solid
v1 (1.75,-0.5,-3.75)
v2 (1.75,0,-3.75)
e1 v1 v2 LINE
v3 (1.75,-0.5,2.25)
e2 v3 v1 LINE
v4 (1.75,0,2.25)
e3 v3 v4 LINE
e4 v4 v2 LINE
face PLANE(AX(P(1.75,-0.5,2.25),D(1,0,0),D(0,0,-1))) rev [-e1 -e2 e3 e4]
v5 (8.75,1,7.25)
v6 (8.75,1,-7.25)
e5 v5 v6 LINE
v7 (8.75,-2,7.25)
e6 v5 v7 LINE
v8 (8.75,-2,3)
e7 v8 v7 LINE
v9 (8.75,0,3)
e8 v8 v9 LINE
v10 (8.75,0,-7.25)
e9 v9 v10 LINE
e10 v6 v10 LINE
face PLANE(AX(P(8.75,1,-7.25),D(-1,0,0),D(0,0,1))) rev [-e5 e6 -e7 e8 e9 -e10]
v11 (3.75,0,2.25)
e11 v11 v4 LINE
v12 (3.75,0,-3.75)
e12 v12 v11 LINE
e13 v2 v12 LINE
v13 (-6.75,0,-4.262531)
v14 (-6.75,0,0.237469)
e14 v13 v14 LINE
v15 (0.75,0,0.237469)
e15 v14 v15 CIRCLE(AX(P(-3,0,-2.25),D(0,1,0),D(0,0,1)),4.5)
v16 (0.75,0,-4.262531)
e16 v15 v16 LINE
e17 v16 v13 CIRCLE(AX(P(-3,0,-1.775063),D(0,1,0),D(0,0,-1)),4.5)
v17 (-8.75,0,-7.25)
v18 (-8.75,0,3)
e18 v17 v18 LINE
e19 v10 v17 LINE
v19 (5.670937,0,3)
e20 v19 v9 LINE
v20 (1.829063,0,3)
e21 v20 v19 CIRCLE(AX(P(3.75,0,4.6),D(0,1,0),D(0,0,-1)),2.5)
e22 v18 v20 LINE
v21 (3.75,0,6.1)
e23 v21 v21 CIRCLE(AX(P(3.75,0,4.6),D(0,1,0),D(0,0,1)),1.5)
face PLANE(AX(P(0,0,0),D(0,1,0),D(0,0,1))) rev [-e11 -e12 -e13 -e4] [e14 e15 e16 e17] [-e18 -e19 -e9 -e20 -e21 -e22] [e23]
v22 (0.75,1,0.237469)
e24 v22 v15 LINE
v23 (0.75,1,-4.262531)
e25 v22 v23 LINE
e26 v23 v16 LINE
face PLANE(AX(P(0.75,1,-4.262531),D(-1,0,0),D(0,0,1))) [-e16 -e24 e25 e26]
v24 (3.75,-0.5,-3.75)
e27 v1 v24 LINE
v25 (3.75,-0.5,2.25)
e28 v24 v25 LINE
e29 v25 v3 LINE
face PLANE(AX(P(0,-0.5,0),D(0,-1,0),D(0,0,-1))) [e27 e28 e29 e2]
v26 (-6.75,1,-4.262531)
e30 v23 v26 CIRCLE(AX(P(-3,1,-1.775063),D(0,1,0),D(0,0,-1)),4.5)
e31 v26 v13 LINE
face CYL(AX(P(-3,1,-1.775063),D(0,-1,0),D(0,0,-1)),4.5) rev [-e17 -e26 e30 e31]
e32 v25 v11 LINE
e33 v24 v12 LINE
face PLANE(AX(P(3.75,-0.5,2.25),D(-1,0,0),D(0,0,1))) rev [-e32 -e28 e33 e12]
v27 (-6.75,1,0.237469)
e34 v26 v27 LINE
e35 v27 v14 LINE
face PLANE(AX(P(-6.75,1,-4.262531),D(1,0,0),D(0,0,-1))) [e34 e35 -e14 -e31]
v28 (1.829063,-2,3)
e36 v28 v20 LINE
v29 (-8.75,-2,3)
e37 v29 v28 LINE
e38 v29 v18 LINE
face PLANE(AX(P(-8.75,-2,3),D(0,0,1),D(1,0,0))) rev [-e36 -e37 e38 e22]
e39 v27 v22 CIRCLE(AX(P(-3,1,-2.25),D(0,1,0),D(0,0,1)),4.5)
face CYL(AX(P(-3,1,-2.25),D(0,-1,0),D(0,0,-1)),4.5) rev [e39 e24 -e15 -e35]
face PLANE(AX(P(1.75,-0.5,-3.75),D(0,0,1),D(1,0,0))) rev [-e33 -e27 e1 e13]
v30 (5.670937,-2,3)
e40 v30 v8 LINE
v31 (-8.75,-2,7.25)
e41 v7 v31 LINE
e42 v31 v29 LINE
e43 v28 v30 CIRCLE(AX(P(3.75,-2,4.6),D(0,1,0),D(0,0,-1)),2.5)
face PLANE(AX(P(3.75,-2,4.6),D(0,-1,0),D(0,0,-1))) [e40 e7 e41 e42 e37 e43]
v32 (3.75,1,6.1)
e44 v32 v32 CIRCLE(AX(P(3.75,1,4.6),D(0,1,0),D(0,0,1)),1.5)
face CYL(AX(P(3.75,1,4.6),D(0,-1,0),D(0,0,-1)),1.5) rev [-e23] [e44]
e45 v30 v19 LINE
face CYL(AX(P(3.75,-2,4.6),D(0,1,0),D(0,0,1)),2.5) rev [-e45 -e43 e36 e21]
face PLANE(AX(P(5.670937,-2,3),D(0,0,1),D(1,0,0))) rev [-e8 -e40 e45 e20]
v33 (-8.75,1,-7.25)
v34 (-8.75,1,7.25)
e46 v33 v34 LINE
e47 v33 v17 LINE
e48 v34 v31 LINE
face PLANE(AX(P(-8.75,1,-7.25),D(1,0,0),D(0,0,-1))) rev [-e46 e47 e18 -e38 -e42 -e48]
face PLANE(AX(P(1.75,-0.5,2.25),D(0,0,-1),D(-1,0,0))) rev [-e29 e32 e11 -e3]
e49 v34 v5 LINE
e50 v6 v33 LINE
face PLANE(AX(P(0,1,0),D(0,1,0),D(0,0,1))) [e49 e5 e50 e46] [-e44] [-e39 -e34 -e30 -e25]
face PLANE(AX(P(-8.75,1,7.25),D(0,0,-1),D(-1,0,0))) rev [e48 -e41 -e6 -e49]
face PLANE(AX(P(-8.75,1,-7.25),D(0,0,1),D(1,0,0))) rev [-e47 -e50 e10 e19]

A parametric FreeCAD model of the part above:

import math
import FreeCAD as App
import Part
import Sketcher
from FreeCAD import Vector

doc = App.newDocument("Part")
params = doc.addObject("Spreadsheet::Sheet", "Params")
for row, (alias, value) in enumerate([
    ("sketch1_diameter", "3 mm"),
    ("sketch1_radius", "4.5 mm"),
    ("sketch1_width", "17.5 mm"),
    ("sketch1_height", "14.5 mm"),
    ("sketch1_height2", "4.5 mm"),
    ("pad1_length", "1 mm"),
    ("sketch2_radius", "2.5 mm"),
    ("sketch2_width", "17.5 mm"),
    ("sketch2_height", "4.25 mm"),
    ("pad2_length", "2 mm"),
    ("sketch3_width", "2 mm"),
    ("sketch3_height", "6 mm"),
    ("pad3_length", "0.5 mm"),
], start=1):
    params.set(f"A{row}", alias)
    params.set(f"B{row}", "=" + value)
    params.setAlias(f"B{row}", alias)

body = doc.addObject("PartDesign::Body", "Body")

# Sketch on XZ plane
sketch1 = doc.addObject("Sketcher::SketchObject", "Sketch")
body.addObject(sketch1)
sketch1.AttachmentSupport = (doc.XZ_Plane, [""])
sketch1.MapMode = "FlatFace"
sketch1.addGeometry(Part.LineSegment(Vector(8.75, -7.25, 0), Vector(-8.75, -7.25, 0)), False)
sketch1.addGeometry(Part.LineSegment(Vector(-8.75, -7.25, 0), Vector(-8.75, 7.25, 0)), False)
sketch1.addGeometry(Part.LineSegment(Vector(-8.75, 7.25, 0), Vector(8.75, 7.25, 0)), False)
sketch1.addGeometry(Part.LineSegment(Vector(8.75, 7.25, 0), Vector(8.75, -7.25, 0)), False)
sketch1.addGeometry(Part.Circle(Vector(3.75, 4.6, 0), Vector(0, 0, 1), 1.5), False)
sketch1.addGeometry(Part.ArcOfCircle(Part.Circle(Vector(-3, -1.775063, 0), Vector(0, 0, 1), 4.5), math.radians(-146.44269), math.radians(-33.55731)), False)
sketch1.addGeometry(Part.LineSegment(Vector(0.75, -4.262531, 0), Vector(0.75, 0.237469, 0)), False)
sketch1.addGeometry(Part.ArcOfCircle(Part.Circle(Vector(-3, -2.25, 0), Vector(0, 0, 1), 4.5), math.radians(33.55731), math.radians(146.44269)), False)
sketch1.addGeometry(Part.LineSegment(Vector(-6.75, 0.237469, 0), Vector(-6.75, -4.262531, 0)), False)
sketch1.addConstraint(Sketcher.Constraint("Coincident", 0, 2, 1, 1))
sketch1.addConstraint(Sketcher.Constraint("Coincident", 1, 2, 2, 1))
sketch1.addConstraint(Sketcher.Constraint("Coincident", 2, 2, 3, 1))
sketch1.addConstraint(Sketcher.Constraint("Coincident", 3, 2, 0, 1))
sketch1.addConstraint(Sketcher.Constraint("Coincident", 5, 2, 6, 1))
sketch1.addConstraint(Sketcher.Constraint("Coincident", 6, 2, 7, 1))
sketch1.addConstraint(Sketcher.Constraint("Coincident", 7, 2, 8, 1))
sketch1.addConstraint(Sketcher.Constraint("Coincident", 8, 2, 5, 1))
sketch1.addConstraint(Sketcher.Constraint("Horizontal", 0))
sketch1.addConstraint(Sketcher.Constraint("Vertical", 1))
sketch1.addConstraint(Sketcher.Constraint("Horizontal", 2))
sketch1.addConstraint(Sketcher.Constraint("Vertical", 3))
sketch1.addConstraint(Sketcher.Constraint("Vertical", 6))
sketch1.addConstraint(Sketcher.Constraint("Vertical", 8))
sketch1.addConstraint(Sketcher.Constraint("Equal", 5, 7))
sketch1.addConstraint(Sketcher.Constraint("Symmetric", 0, 2, 2, 2, -1, 1))
sketch1.addConstraint(Sketcher.Constraint("Horizontal", 6, 2, 7, 2))
sketch1.addConstraint(Sketcher.Constraint("Horizontal", 5, 2, 8, 2))
sketch1.addConstraint(Sketcher.Constraint("Diameter", 4, 3.0))
sketch1.addConstraint(Sketcher.Constraint("Radius", 5, 4.5))
sketch1.addConstraint(Sketcher.Constraint("DistanceX", 0, 2, 0, 1, 17.5))
sketch1.addConstraint(Sketcher.Constraint("DistanceY", 1, 1, 1, 2, 14.5))
sketch1.addConstraint(Sketcher.Constraint("DistanceY", 6, 1, 6, 2, 4.5))
sketch1.addConstraint(Sketcher.Constraint("DistanceX", 5, 3, -1, 1, 3.0))
sketch1.addConstraint(Sketcher.Constraint("DistanceY", 0, 2, 7, 3, 5.0))
sketch1.addConstraint(Sketcher.Constraint("DistanceX", 4, 3, 2, 2, 5.0))
sketch1.addConstraint(Sketcher.Constraint("DistanceX", 5, 2, 3, 2, 8.0))
sketch1.addConstraint(Sketcher.Constraint("DistanceY", -1, 1, 4, 3, 4.6))
sketch1.setExpression("Constraints[18]", "Params.sketch1_diameter")
sketch1.setExpression("Constraints[19]", "Params.sketch1_radius")
sketch1.setExpression("Constraints[20]", "Params.sketch1_width")
sketch1.setExpression("Constraints[21]", "Params.sketch1_height")
sketch1.setExpression("Constraints[22]", "Params.sketch1_height2")
pad1 = doc.addObject("PartDesign::Pad", "Pad")
body.addObject(pad1)
pad1.Profile = sketch1
pad1.setExpression("Length", "Params.pad1_length")
pad1.Reversed = True

# Sketch on XZ plane
sketch2 = doc.addObject("Sketcher::SketchObject", "Sketch001")
body.addObject(sketch2)
sketch2.AttachmentSupport = (doc.XZ_Plane, [""])
sketch2.MapMode = "FlatFace"
sketch2.addGeometry(Part.LineSegment(Vector(8.75, 7.25, 0), Vector(-8.75, 7.25, 0)), False)
sketch2.addGeometry(Part.LineSegment(Vector(-8.75, 7.25, 0), Vector(-8.75, 3, 0)), False)
sketch2.addGeometry(Part.LineSegment(Vector(-8.75, 3, 0), Vector(1.829063, 3, 0)), False)
sketch2.addGeometry(Part.ArcOfCircle(Part.Circle(Vector(3.75, 4.6, 0), Vector(0, 0, 1), 2.5), math.radians(-39.79182), math.radians(219.79182)), False)
sketch2.addGeometry(Part.LineSegment(Vector(5.670937, 3, 0), Vector(8.75, 3, 0)), False)
sketch2.addGeometry(Part.LineSegment(Vector(8.75, 3, 0), Vector(8.75, 7.25, 0)), False)
sketch2.addConstraint(Sketcher.Constraint("Coincident", 0, 2, 1, 1))
sketch2.addConstraint(Sketcher.Constraint("Coincident", 1, 2, 2, 1))
sketch2.addConstraint(Sketcher.Constraint("Coincident", 2, 2, 3, 2))
sketch2.addConstraint(Sketcher.Constraint("Coincident", 3, 1, 4, 1))
sketch2.addConstraint(Sketcher.Constraint("Coincident", 4, 2, 5, 1))
sketch2.addConstraint(Sketcher.Constraint("Coincident", 5, 2, 0, 1))
sketch2.addConstraint(Sketcher.Constraint("Horizontal", 0))
sketch2.addConstraint(Sketcher.Constraint("Vertical", 1))
sketch2.addConstraint(Sketcher.Constraint("Horizontal", 2))
sketch2.addConstraint(Sketcher.Constraint("Horizontal", 4))
sketch2.addConstraint(Sketcher.Constraint("Vertical", 5))
sketch2.addConstraint(Sketcher.Constraint("Symmetric", 1, 2, 4, 2, -2))
sketch2.addConstraint(Sketcher.Constraint("Radius", 3, 2.5))
sketch2.addConstraint(Sketcher.Constraint("DistanceX", 0, 2, 0, 1, 17.5))
sketch2.addConstraint(Sketcher.Constraint("DistanceY", -1, 1, 1, 2, 3.0))
sketch2.addConstraint(Sketcher.Constraint("DistanceX", 3, 3, 4, 2, 5.0))
sketch2.addConstraint(Sketcher.Constraint("DistanceY", 1, 2, 1, 1, 4.25))
sketch2.addConstraint(Sketcher.Constraint("DistanceY", -1, 1, 3, 3, 4.6))
sketch2.setExpression("Constraints[12]", "Params.sketch2_radius")
sketch2.setExpression("Constraints[13]", "Params.sketch2_width")
sketch2.setExpression("Constraints[16]", "Params.sketch2_height")
pad2 = doc.addObject("PartDesign::Pad", "Pad001")
body.addObject(pad2)
pad2.Profile = sketch2
pad2.setExpression("Length", "Params.pad2_length")

# Sketch on XZ plane
sketch3 = doc.addObject("Sketcher::SketchObject", "Sketch002")
body.addObject(sketch3)
sketch3.AttachmentSupport = (doc.XZ_Plane, [""])
sketch3.MapMode = "FlatFace"
sketch3.addGeometry(Part.LineSegment(Vector(1.75, 2.25, 0), Vector(1.75, -3.75, 0)), False)
sketch3.addGeometry(Part.LineSegment(Vector(1.75, -3.75, 0), Vector(3.75, -3.75, 0)), False)
sketch3.addGeometry(Part.LineSegment(Vector(3.75, -3.75, 0), Vector(3.75, 2.25, 0)), False)
sketch3.addGeometry(Part.LineSegment(Vector(3.75, 2.25, 0), Vector(1.75, 2.25, 0)), False)
sketch3.addConstraint(Sketcher.Constraint("Coincident", 0, 2, 1, 1))
sketch3.addConstraint(Sketcher.Constraint("Coincident", 1, 2, 2, 1))
sketch3.addConstraint(Sketcher.Constraint("Coincident", 2, 2, 3, 1))
sketch3.addConstraint(Sketcher.Constraint("Coincident", 3, 2, 0, 1))
sketch3.addConstraint(Sketcher.Constraint("Vertical", 0))
sketch3.addConstraint(Sketcher.Constraint("Horizontal", 1))
sketch3.addConstraint(Sketcher.Constraint("Vertical", 2))
sketch3.addConstraint(Sketcher.Constraint("Horizontal", 3))
sketch3.addConstraint(Sketcher.Constraint("DistanceX", 1, 1, 1, 2, 2.0))
sketch3.addConstraint(Sketcher.Constraint("DistanceY", 0, 2, 0, 1, 6.0))
sketch3.addConstraint(Sketcher.Constraint("DistanceX", -1, 1, 0, 2, 1.75))
sketch3.addConstraint(Sketcher.Constraint("DistanceY", 0, 2, -1, 1, 3.75))
sketch3.setExpression("Constraints[8]", "Params.sketch3_width")
sketch3.setExpression("Constraints[9]", "Params.sketch3_height")
pad3 = doc.addObject("PartDesign::Pad", "Pad002")
body.addObject(pad3)
pad3.Profile = sketch3
pad3.setExpression("Length", "Params.pad3_length")

doc.recompute()
